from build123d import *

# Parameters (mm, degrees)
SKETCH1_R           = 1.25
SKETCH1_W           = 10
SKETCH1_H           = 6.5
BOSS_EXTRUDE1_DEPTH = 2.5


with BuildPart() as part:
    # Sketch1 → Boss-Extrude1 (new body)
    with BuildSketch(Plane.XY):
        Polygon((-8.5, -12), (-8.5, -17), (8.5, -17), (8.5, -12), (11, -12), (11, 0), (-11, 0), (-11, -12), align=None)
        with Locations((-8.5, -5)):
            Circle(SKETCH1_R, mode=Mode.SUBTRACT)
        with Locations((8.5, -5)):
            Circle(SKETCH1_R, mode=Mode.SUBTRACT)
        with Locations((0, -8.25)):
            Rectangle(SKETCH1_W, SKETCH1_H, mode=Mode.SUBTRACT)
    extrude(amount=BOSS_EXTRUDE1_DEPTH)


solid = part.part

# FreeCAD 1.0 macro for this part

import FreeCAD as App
import Part
import Sketcher
from FreeCAD import Vector


def add_polygon(sketch, points):
    """Adds a closed chain of lines whose ends are joined by coincident constraints."""
    first, n = sketch.GeometryCount, len(points)
    for a, b in zip(points, points[1:] + points[:1]):
        sketch.addGeometry(Part.LineSegment(App.Vector(*a, 0), App.Vector(*b, 0)), False)
    for i in range(n):
        sketch.addConstraint(Sketcher.Constraint("Coincident", first + i, 2, first + (i + 1) % n, 1))

doc = App.newDocument("Part")
body = doc.addObject("PartDesign::Body", "Body")

# Sketch on XY plane
sketch1 = body.newObject("Sketcher::SketchObject", "Sketch")
sketch1.AttachmentSupport = (doc.getObject("XY_Plane"), [""])
sketch1.MapMode = "FlatFace"
add_polygon(sketch1, [(-8.5, -12), (-8.5, -17), (8.5, -17), (8.5, -12), (11, -12), (11, 0), (-11, 0), (-11, -12)])  # lines 0-7
add_polygon(sketch1, [(5, -11.5), (-5, -11.5), (-5, -5), (5, -5)])  # lines 8-11
sketch1.addGeometry(Part.Circle(Vector(-8.5, -5, 0), Vector(0, 0, 1), 1.2), False)  # 12
sketch1.addGeometry(Part.Circle(Vector(8.5, -5, 0), Vector(0, 0, 1), 1.2), False)  # 13
sketch1.addConstraint(Sketcher.Constraint("Vertical", 0))
sketch1.addConstraint(Sketcher.Constraint("Horizontal", 1))
sketch1.addConstraint(Sketcher.Constraint("Vertical", 2))
sketch1.addConstraint(Sketcher.Constraint("Horizontal", 3))
sketch1.addConstraint(Sketcher.Constraint("Vertical", 4))
sketch1.addConstraint(Sketcher.Constraint("Horizontal", 5))
sketch1.addConstraint(Sketcher.Constraint("Vertical", 6))
sketch1.addConstraint(Sketcher.Constraint("Horizontal", 7))
sketch1.addConstraint(Sketcher.Constraint("Horizontal", 8))
sketch1.addConstraint(Sketcher.Constraint("Vertical", 9))
sketch1.addConstraint(Sketcher.Constraint("Horizontal", 10))
sketch1.addConstraint(Sketcher.Constraint("Vertical", 11))
sketch1.addConstraint(Sketcher.Constraint("Equal", 12, 13))
sketch1.addConstraint(Sketcher.Constraint("Symmetric", 4, 2, 5, 2, -1, 1))
sketch1.addConstraint(Sketcher.Constraint("Symmetric", 12, 3, 13, 3, -2))
sketch1.addConstraint(Sketcher.Constraint("Symmetric", 2, 2, 7, 2, -2))
sketch1.addConstraint(Sketcher.Constraint("Horizontal", 13, 3, 9, 2))
sketch1.addConstraint(Sketcher.Constraint("Vertical", 12, 3, 0, 2))
sketch1.addConstraint(Sketcher.Constraint("Diameter", 12, 2.5))
sketch1.addConstraint(Sketcher.Constraint("DistanceX", 1, 1, 1, 2, 17.0))
sketch1.addConstraint(Sketcher.Constraint("DistanceX", 5, 2, 5, 1, 22.0))
sketch1.addConstraint(Sketcher.Constraint("DistanceX", 8, 2, 8, 1, 10.0))
sketch1.addConstraint(Sketcher.Constraint("DistanceY", 0, 2, 0, 1, 5.0))
sketch1.addConstraint(Sketcher.Constraint("DistanceY", 4, 1, 4, 2, 12.0))
sketch1.addConstraint(Sketcher.Constraint("DistanceY", 9, 1, 9, 2, 6.5))
sketch1.addConstraint(Sketcher.Constraint("DistanceY", 12, 3, -1, 1, 5.0))
sketch1.addConstraint(Sketcher.Constraint("DistanceX", 8, 2, -1, 1, 5.0))
pad1 = body.newObject("PartDesign::Pad", "Pad")
pad1.Profile = sketch1
pad1.Length = 2.5

doc.recompute()
